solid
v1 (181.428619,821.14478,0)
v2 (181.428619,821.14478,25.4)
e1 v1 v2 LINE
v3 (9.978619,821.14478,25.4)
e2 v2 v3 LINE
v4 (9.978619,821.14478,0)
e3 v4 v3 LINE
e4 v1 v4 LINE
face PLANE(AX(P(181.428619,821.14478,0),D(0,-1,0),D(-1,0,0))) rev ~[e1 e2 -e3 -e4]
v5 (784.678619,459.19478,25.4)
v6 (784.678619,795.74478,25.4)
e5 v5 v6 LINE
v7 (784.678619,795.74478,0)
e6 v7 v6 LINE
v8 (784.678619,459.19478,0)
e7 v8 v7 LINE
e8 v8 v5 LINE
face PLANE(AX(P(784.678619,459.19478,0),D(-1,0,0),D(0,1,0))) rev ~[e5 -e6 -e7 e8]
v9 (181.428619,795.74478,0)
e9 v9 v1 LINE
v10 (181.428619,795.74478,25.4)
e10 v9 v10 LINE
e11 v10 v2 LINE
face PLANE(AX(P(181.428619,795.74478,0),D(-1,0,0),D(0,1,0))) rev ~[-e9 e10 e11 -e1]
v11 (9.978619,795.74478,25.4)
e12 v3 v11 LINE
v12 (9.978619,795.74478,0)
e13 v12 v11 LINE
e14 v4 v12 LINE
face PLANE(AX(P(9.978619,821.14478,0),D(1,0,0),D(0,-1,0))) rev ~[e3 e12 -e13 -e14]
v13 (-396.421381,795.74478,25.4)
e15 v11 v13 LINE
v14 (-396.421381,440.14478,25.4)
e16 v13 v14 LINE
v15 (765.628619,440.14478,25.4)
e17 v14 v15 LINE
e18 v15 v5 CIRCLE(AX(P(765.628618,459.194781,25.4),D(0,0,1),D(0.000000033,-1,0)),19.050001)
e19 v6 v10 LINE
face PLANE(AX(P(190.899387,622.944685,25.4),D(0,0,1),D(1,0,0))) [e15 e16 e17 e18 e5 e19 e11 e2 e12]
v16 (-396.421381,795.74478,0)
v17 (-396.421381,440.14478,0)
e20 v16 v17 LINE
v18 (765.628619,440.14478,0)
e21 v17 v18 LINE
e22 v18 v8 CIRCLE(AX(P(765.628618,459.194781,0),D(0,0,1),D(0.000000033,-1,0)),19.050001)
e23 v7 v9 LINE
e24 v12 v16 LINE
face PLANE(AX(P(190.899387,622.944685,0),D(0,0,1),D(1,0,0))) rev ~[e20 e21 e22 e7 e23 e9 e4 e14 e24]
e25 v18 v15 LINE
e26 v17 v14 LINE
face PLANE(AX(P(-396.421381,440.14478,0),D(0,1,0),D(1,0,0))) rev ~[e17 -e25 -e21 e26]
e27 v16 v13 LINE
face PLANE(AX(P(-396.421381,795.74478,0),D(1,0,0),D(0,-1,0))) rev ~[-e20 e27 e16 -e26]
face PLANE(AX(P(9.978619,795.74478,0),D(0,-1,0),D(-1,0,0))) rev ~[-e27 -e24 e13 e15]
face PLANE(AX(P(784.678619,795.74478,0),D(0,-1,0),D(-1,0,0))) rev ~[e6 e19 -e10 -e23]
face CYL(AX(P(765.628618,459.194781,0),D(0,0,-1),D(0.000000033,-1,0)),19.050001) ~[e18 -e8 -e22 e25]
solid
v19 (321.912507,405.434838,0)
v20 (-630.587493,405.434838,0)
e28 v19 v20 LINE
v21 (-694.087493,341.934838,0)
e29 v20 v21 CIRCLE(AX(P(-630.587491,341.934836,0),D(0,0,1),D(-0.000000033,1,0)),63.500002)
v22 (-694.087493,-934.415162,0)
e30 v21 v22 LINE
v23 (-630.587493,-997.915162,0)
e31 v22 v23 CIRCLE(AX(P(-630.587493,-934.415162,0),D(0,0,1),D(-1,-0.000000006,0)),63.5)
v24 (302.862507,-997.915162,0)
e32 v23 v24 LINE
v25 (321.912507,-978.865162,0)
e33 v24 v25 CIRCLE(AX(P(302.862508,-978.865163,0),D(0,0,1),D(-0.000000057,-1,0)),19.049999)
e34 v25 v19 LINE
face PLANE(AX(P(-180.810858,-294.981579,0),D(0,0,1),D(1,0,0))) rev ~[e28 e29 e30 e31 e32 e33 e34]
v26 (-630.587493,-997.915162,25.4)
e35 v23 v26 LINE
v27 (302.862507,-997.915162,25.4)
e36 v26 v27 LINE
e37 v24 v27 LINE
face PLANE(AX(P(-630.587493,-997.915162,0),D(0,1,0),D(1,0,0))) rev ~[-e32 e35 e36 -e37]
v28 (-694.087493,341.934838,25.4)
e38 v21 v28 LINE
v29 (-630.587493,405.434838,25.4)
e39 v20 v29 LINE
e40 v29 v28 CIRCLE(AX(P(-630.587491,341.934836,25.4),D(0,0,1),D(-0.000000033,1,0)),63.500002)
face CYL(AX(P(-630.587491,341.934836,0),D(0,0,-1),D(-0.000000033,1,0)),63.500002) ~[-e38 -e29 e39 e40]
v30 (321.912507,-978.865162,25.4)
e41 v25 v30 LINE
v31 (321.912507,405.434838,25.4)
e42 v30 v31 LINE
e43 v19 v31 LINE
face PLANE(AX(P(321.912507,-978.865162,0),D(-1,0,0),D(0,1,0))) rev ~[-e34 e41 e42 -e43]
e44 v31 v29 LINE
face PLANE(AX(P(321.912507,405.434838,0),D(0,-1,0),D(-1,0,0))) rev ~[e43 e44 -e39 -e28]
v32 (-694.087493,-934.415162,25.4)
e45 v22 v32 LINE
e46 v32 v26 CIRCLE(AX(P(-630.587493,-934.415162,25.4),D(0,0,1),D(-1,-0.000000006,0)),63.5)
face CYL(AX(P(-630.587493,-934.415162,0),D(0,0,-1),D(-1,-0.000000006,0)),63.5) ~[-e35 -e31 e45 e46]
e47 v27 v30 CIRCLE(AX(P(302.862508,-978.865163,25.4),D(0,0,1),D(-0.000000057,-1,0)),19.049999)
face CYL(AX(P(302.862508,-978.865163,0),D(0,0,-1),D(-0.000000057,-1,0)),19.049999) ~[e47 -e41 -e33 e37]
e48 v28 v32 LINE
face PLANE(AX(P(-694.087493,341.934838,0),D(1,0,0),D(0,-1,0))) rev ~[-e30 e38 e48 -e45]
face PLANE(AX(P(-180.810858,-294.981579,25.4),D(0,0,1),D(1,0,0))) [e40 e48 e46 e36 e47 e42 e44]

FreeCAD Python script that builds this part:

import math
import FreeCAD as App
import Part
import Sketcher

V = App.Vector
Q = App.Units.Quantity

doc = App.newDocument("Part")
body = doc.addObject("PartDesign::Body", "Body")

sketch1 = doc.addObject("Sketcher::SketchObject", "Sketch")
body.addObject(sketch1)
sketch1.AttachmentSupport = (doc.XY_Plane, [""])
sketch1.MapMode = "FlatFace"
sketch1.addGeometry([
    Part.ArcOfCircle(Part.Circle(V(-630.587491, 341.934836, 0), V(0, 0, 1), 63.500002), math.radians(90.000002), math.radians(179.999998)),
    Part.LineSegment(V(-694.087493, 341.934838, 0), V(-694.087493, -934.415162, 0)),
    Part.ArcOfCircle(Part.Circle(V(-630.587493, -934.415162, 0), V(0, 0, 1), 63.5), math.radians(-180), math.radians(-90)),
    Part.LineSegment(V(-630.587493, -997.915162, 0), V(302.862507, -997.915162, 0)),
    Part.ArcOfCircle(Part.Circle(V(302.862508, -978.865163, 0), V(0, 0, 1), 19.049999), math.radians(-90.000003), math.radians(0.000003)),
    Part.LineSegment(V(321.912507, -978.865162, 0), V(321.912507, 405.434838, 0)),
    Part.LineSegment(V(321.912507, 405.434838, 0), V(-630.587493, 405.434838, 0)),
], False)
sketch1.addConstraint([
    Sketcher.Constraint("Tangent", 0, 2, 1, 1),
    Sketcher.Constraint("Tangent", 1, 2, 2, 1),
    Sketcher.Constraint("Tangent", 2, 2, 3, 1),
    Sketcher.Constraint("Tangent", 3, 2, 4, 1),
    Sketcher.Constraint("Tangent", 4, 2, 5, 1),
    Sketcher.Constraint("Coincident", 5, 2, 6, 1),
    Sketcher.Constraint("Tangent", 6, 2, 0, 1),
    Sketcher.Constraint("Vertical", 1),
    Sketcher.Constraint("Horizontal", 3),
    Sketcher.Constraint("Vertical", 5),
    Sketcher.Constraint("Horizontal", 6),
    Sketcher.Constraint("Equal", 0, 2),
    Sketcher.Constraint("Radius", 0, Q("2.5000001 in")),
    Sketcher.Constraint("Radius", 4, Q("0.75 in")),
    Sketcher.Constraint("DistanceX", 6, 2, 6, 1, Q("37.5 in")),
    Sketcher.Constraint("DistanceY", 5, 1, 5, 2, Q("54.5 in")),
    Sketcher.Constraint("DistanceX", 0, 3, -1, 1, 630.587491),
    Sketcher.Constraint("DistanceY", 2, 3, -1, 1, 934.415162),
])
pad1 = doc.addObject("PartDesign::Pad", "Pad")
body.addObject(pad1)
pad1.Profile = sketch1
pad1.Length = Q("1 in")
body2 = doc.addObject("PartDesign::Body", "Body001")

sketch2 = doc.addObject("Sketcher::SketchObject", "Sketch001")
body2.addObject(sketch2)
sketch2.AttachmentSupport = (doc.getObject("XY_Plane001"), [""])
sketch2.MapMode = "FlatFace"
sketch2.addGeometry([
    Part.LineSegment(V(-396.421381, 440.14478, 0), V(765.628619, 440.14478, 0)),
    Part.ArcOfCircle(Part.Circle(V(765.628618, 459.194781, 0), V(0, 0, 1), 19.050001), math.radians(-89.999998), math.radians(-0.000002)),
    Part.LineSegment(V(784.678619, 459.19478, 0), V(784.678619, 795.74478, 0)),
    Part.LineSegment(V(784.678619, 795.74478, 0), V(181.428619, 795.74478, 0)),
    Part.LineSegment(V(181.428619, 795.74478, 0), V(181.428619, 821.14478, 0)),
    Part.LineSegment(V(181.428619, 821.14478, 0), V(9.978619, 821.14478, 0)),
    Part.LineSegment(V(9.978619, 821.14478, 0), V(9.978619, 795.74478, 0)),
    Part.LineSegment(V(9.978619, 795.74478, 0), V(-396.421381, 795.74478, 0)),
    Part.LineSegment(V(-396.421381, 795.74478, 0), V(-396.421381, 440.14478, 0)),
], False)
sketch2.addConstraint([
    Sketcher.Constraint("Tangent", 0, 2, 1, 1),
    Sketcher.Constraint("Tangent", 1, 2, 2, 1),
    Sketcher.Constraint("Coincident", 2, 2, 3, 1),
    Sketcher.Constraint("Coincident", 3, 2, 4, 1),
    Sketcher.Constraint("Coincident", 4, 2, 5, 1),
    Sketcher.Constraint("Coincident", 5, 2, 6, 1),
    Sketcher.Constraint("Coincident", 6, 2, 7, 1),
    Sketcher.Constraint("Coincident", 7, 2, 8, 1),
    Sketcher.Constraint("Coincident", 8, 2, 0, 1),
    Sketcher.Constraint("Horizontal", 0),
    Sketcher.Constraint("Vertical", 2),
    Sketcher.Constraint("Horizontal", 3),
    Sketcher.Constraint("Vertical", 4),
    Sketcher.Constraint("Horizontal", 5),
    Sketcher.Constraint("Vertical", 6),
    Sketcher.Constraint("Horizontal", 7),
    Sketcher.Constraint("Vertical", 8),
    Sketcher.Constraint("Horizontal", 3, 2, 6, 2),
    Sketcher.Constraint("DistanceX", 7, 2, 7, 1, Q("16 in")),
    Sketcher.Constraint("DistanceY", 4, 1, 4, 2, Q("1 in")),
    Sketcher.Constraint("DistanceY", 8, 2, 8, 1, Q("14 in")),
    Sketcher.Constraint("Radius", 1, Q("0.75 in")),
    Sketcher.Constraint("DistanceX", 3, 2, 1, 3, Q("23 in")),
    Sketcher.Constraint("DistanceX", 0, 1, 0, 2, Q("45.75 in")),
    Sketcher.Constraint("DistanceX", -1, 1, 1, 3, 765.628618),
    Sketcher.Constraint("DistanceY", -1, 1, 1, 3, 459.194781),
])
pad2 = doc.addObject("PartDesign::Pad", "Pad001")
body2.addObject(pad2)
pad2.Profile = sketch2
pad2.Length = Q("1 in")

doc.recompute()
